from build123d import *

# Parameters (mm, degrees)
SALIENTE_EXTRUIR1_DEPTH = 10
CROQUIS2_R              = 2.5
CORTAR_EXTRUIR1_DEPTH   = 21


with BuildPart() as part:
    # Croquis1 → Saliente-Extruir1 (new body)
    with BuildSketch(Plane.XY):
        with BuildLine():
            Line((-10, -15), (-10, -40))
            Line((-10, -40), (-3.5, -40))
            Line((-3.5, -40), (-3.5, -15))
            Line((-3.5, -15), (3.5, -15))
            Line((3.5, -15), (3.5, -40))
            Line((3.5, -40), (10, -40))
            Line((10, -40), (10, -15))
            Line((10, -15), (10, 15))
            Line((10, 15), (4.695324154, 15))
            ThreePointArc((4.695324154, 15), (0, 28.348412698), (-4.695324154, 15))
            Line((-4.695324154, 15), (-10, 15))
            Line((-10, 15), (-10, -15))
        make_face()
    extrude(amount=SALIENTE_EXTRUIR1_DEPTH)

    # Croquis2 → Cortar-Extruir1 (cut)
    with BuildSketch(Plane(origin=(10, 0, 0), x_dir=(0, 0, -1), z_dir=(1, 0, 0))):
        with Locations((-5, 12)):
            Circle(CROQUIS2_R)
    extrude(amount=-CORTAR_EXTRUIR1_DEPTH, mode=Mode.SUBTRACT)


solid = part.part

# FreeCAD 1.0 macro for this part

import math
import FreeCAD as App
import Part
import Sketcher

V = App.Vector
Q = App.Units.Quantity

doc = App.newDocument("Part")
params = doc.addObject("Spreadsheet::Sheet", "Params")
for row, (alias, value) in enumerate([
    ("sketch1_radius", "7.5 mm"),
    ("sketch1_width", "7 mm"),
    ("sketch1_height", "25 mm"),
    ("sketch1_height2", "55 mm"),
    ("sketch1_width2", "6.5 mm"),
    ("pad1_length", "10 mm"),
    ("sketch2_diameter", "5 mm"),
    ("pocket1_length", "21 mm"),
], start=1):
    params.set(f"A{row}", alias)
    params.set(f"B{row}", "=" + value)
    params.setAlias(f"B{row}", alias)

body = doc.addObject("PartDesign::Body", "Body")

sketch1 = body.newObject("Sketcher::SketchObject", "Sketch")
sketch1.AttachmentSupport = (doc.getObject("XY_Plane"), [""])
sketch1.MapMode = "FlatFace"
sketch1.addGeometry([
    Part.LineSegment(V(-10, -40, 0), V(-3.5, -40, 0)),
    Part.LineSegment(V(-3.5, -40, 0), V(-3.5, -15, 0)),
    Part.LineSegment(V(-3.5, -15, 0), V(3.5, -15, 0)),
    Part.LineSegment(V(3.5, -15, 0), V(3.5, -40, 0)),
    Part.LineSegment(V(3.5, -40, 0), V(10, -40, 0)),
    Part.LineSegment(V(10, -40, 0), V(10, 15, 0)),
    Part.LineSegment(V(10, 15, 0), V(4.695324, 15, 0)),
    Part.ArcOfCircle(Part.Circle(V(0, 20.848413, 0), V(0, 0, 1), 7.5), math.radians(-51.241202), math.radians(231.241202)),
    Part.LineSegment(V(-4.695324, 15, 0), V(-10, 15, 0)),
    Part.LineSegment(V(-10, 15, 0), V(-10, -40, 0)),
], False)
sketch1.addConstraint([
    Sketcher.Constraint("Coincident", 0, 2, 1, 1),
    Sketcher.Constraint("Coincident", 1, 2, 2, 1),
    Sketcher.Constraint("Coincident", 2, 2, 3, 1),
    Sketcher.Constraint("Coincident", 3, 2, 4, 1),
    Sketcher.Constraint("Coincident", 4, 2, 5, 1),
    Sketcher.Constraint("Coincident", 5, 2, 6, 1),
    Sketcher.Constraint("Coincident", 6, 2, 7, 1),
    Sketcher.Constraint("Coincident", 7, 2, 8, 1),
    Sketcher.Constraint("Coincident", 8, 2, 9, 1),
    Sketcher.Constraint("Coincident", 9, 2, 0, 1),
    Sketcher.Constraint("Horizontal", 0),
    Sketcher.Constraint("Vertical", 1),
    Sketcher.Constraint("Horizontal", 2),
    Sketcher.Constraint("Vertical", 3),
    Sketcher.Constraint("Horizontal", 4),
    Sketcher.Constraint("Vertical", 5),
    Sketcher.Constraint("Horizontal", 6),
    Sketcher.Constraint("Horizontal", 8),
    Sketcher.Constraint("Vertical", 9),
    Sketcher.Constraint("Symmetric", 0, 2, 3, 2, -2),
    Sketcher.Constraint("Symmetric", 6, 2, 7, 2, -2),
    Sketcher.Constraint("Equal", 0, 4),
    Sketcher.Constraint("Radius", 7, Q("7.5 mm")),
    Sketcher.Constraint("DistanceX", 2, 1, 2, 2, Q("7 mm")),
    Sketcher.Constraint("DistanceY", 1, 1, 1, 2, Q("25 mm")),
    Sketcher.Constraint("DistanceY", 5, 1, 5, 2, Q("55 mm")),
    Sketcher.Constraint("DistanceX", 0, 1, 0, 2, Q("6.5 mm")),
    Sketcher.Constraint("DistanceY", 0, 2, -1, 1, Q("40 mm")),
    Sketcher.Constraint("DistanceX", 6, 2, 6, 1, Q("5.304676 mm")),
])
sketch1.setExpression("Constraints[22]", "Params.sketch1_radius")
sketch1.setExpression("Constraints[23]", "Params.sketch1_width")
sketch1.setExpression("Constraints[24]", "Params.sketch1_height")
sketch1.setExpression("Constraints[25]", "Params.sketch1_height2")
sketch1.setExpression("Constraints[26]", "Params.sketch1_width2")
pad1 = body.newObject("PartDesign::Pad", "Pad")
pad1.Profile = sketch1
pad1.setExpression("Length", "Params.pad1_length")

sketch2 = body.newObject("Sketcher::SketchObject", "Sketch001")
sketch2.AttachmentSupport = (doc.getObject("YZ_Plane"), [""])
sketch2.MapMode = "FlatFace"
sketch2.AttachmentOffset = App.Placement(V(0, 0, 10), App.Rotation())
sketch2.addGeometry(Part.Circle(V(12, 5, 0), V(0, 0, 1), 2.5), False)
sketch2.addConstraint([
    Sketcher.Constraint("Diameter", 0, Q("5 mm")),
    Sketcher.Constraint("DistanceX", -1, 1, 0, 3, Q("12 mm")),
    Sketcher.Constraint("DistanceY", -1, 1, 0, 3, Q("5 mm")),
])
sketch2.setExpression("Constraints[0]", "Params.sketch2_diameter")
pocket1 = body.newObject("PartDesign::Pocket", "Pocket")
pocket1.Profile = sketch2
pocket1.setExpression("Length", "Params.pocket1_length")

doc.recompute()
